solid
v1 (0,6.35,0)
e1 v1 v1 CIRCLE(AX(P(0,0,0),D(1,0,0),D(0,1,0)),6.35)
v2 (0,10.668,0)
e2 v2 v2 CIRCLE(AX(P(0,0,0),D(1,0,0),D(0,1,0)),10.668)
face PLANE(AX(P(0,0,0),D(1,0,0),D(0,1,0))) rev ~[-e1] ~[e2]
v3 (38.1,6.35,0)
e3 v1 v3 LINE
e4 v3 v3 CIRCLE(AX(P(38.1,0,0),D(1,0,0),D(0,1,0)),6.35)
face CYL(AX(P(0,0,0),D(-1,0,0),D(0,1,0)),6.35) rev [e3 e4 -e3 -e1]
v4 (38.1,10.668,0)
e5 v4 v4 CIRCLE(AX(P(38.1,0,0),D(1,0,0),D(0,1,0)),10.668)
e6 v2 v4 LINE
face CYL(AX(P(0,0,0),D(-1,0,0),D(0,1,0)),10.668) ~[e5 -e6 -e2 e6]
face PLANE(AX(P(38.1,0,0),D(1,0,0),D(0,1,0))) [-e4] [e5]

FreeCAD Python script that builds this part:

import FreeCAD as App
import Part
import Sketcher
Q = App.Units.Quantity

doc = App.newDocument("Part")
body = doc.addObject("PartDesign::Body", "Body")

sketch1 = doc.addObject("Sketcher::SketchObject", "Sketch")
body.addObject(sketch1)
sketch1.AttachmentSupport = (doc.YZ_Plane, [""])
sketch1.MapMode = "FlatFace"
sketch1.addGeometry(Part.Circle(App.Vector(0, 0, 0), App.Vector(0, 0, 1), 11), False)
sketch1.addGeometry(Part.Circle(App.Vector(0, 0, 0), App.Vector(0, 0, 1), 6), False)
sketch1.addConstraint(Sketcher.Constraint("Coincident", 0, 3, -1, 1))
sketch1.addConstraint(Sketcher.Constraint("Coincident", 1, 3, -1, 1))
sketch1.addConstraint(Sketcher.Constraint("Diameter", 1, Q("0.5 in")))
sketch1.addConstraint(Sketcher.Constraint("Diameter", 0, Q("0.84 in")))
pad1 = doc.addObject("PartDesign::Pad", "Pad")
body.addObject(pad1)
pad1.Profile = sketch1
pad1.Length = Q("1.5 in")

doc.recompute()
